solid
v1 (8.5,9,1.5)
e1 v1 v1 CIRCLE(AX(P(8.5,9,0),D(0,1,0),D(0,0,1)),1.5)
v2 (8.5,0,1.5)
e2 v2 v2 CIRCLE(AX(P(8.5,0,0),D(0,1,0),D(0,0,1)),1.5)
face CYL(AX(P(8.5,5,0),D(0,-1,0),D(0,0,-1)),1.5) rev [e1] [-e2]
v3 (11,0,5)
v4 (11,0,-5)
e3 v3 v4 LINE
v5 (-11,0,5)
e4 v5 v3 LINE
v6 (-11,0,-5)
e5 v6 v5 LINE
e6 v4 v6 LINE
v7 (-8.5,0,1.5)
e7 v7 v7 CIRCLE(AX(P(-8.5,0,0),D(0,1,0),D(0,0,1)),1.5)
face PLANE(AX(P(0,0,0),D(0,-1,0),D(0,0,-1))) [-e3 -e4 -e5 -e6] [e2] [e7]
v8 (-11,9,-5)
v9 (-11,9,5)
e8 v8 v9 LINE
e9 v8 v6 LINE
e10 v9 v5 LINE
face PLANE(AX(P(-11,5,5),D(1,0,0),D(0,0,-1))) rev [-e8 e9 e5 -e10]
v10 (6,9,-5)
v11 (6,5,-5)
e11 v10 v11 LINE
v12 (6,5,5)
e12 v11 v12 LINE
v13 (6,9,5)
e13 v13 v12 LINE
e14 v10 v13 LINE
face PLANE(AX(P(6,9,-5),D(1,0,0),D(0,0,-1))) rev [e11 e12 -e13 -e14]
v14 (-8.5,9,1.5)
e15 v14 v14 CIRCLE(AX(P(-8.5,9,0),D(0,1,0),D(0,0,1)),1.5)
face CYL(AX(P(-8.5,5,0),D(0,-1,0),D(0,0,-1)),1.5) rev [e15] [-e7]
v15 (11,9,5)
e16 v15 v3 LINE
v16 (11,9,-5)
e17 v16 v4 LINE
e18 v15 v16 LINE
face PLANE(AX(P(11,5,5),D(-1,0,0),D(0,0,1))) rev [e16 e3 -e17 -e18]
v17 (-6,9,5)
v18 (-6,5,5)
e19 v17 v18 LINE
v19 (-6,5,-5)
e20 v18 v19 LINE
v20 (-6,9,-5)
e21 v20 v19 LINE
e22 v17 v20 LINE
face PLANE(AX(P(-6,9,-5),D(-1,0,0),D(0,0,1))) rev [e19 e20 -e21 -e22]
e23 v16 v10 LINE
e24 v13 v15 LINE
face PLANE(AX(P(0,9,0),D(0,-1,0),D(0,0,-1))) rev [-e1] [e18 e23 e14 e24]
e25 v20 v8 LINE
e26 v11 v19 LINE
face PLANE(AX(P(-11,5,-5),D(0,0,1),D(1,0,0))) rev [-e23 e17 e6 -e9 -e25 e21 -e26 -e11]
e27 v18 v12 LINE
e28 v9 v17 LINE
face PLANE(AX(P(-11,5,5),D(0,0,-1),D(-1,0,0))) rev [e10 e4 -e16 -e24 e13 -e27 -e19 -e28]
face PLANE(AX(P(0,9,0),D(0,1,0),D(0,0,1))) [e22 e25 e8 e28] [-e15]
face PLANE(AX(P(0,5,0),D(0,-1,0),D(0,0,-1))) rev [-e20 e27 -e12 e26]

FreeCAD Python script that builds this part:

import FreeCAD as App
import Part
import Sketcher
from FreeCAD import Vector


def add_polygon(sketch, points):
    """Adds a closed chain of lines whose ends are joined by coincident constraints."""
    first, n = sketch.GeometryCount, len(points)
    for a, b in zip(points, points[1:] + points[:1]):
        sketch.addGeometry(Part.LineSegment(App.Vector(*a, 0), App.Vector(*b, 0)), False)
    for i in range(n):
        sketch.addConstraint(Sketcher.Constraint("Coincident", first + i, 2, first + (i + 1) % n, 1))

doc = App.newDocument("Part")
body = doc.addObject("PartDesign::Body", "Body")

# Sketch on XZ plane
sketch1 = body.newObject("Sketcher::SketchObject", "Sketch")
sketch1.AttachmentSupport = (doc.getObject("XZ_Plane"), [""])
sketch1.MapMode = "FlatFace"
add_polygon(sketch1, [(-11, -5), (-11, 5), (11, 5), (11, -5)])  # lines 0-3
sketch1.addGeometry(Part.Circle(Vector(-8.5, 0, 0), Vector(0, 0, 1), 1.5), False)  # 4
sketch1.addGeometry(Part.Circle(Vector(8.5, 0, 0), Vector(0, 0, 1), 1.5), False)  # 5
sketch1.addConstraint([
    Sketcher.Constraint("Vertical", 0),
    Sketcher.Constraint("Horizontal", 1),
    Sketcher.Constraint("Vertical", 2),
    Sketcher.Constraint("Horizontal", 3),
    Sketcher.Constraint("Equal", 4, 5),
    Sketcher.Constraint("Symmetric", 4, 3, 5, 3, -1, 1),
    Sketcher.Constraint("Symmetric", 0, 2, 2, 2, -1, 1),
    Sketcher.Constraint("PointOnObject", 4, 3, -1),
    Sketcher.Constraint("Diameter", 4, 3.0),
    Sketcher.Constraint("DistanceX", 1, 1, 1, 2, 22.0),
    Sketcher.Constraint("DistanceY", 0, 1, 0, 2, 10.0),
    Sketcher.Constraint("DistanceX", 4, 3, 5, 3, 17.0),
])
pad1 = body.newObject("PartDesign::Pad", "Pad")
pad1.Profile = sketch1
pad1.Length = 5
pad1.Reversed = True

# Sketch on XZ plane
sketch2 = body.newObject("Sketcher::SketchObject", "Sketch001")
sketch2.AttachmentSupport = (doc.getObject("XZ_Plane"), [""])
sketch2.MapMode = "FlatFace"
sketch2.AttachmentOffset = App.Placement(Vector(0, 0, -5), App.Rotation())
add_polygon(sketch2, [(-11, -5), (-11, 5), (-6, 5), (-6, -5)])  # lines 0-3
sketch2.addGeometry(Part.Circle(Vector(-8.5, 0, 0), Vector(0, 0, 1), 1.5), False)  # 4
add_polygon(sketch2, [(6, -5), (6, 5), (11, 5), (11, -5)])  # lines 5-8
sketch2.addGeometry(Part.Circle(Vector(8.5, 0, 0), Vector(0, 0, 1), 1.5), False)  # 9
sketch2.addConstraint([
    Sketcher.Constraint("Vertical", 0),
    Sketcher.Constraint("Horizontal", 1),
    Sketcher.Constraint("Vertical", 2),
    Sketcher.Constraint("Horizontal", 3),
    Sketcher.Constraint("Vertical", 5),
    Sketcher.Constraint("Horizontal", 6),
    Sketcher.Constraint("Vertical", 7),
    Sketcher.Constraint("Horizontal", 8),
    Sketcher.Constraint("Equal", 4, 9),
    Sketcher.Constraint("Symmetric", 4, 3, 9, 3, -1, 1),
    Sketcher.Constraint("Symmetric", 2, 2, 5, 2, -1, 1),
    Sketcher.Constraint("Symmetric", 0, 2, 7, 2, -1, 1),
    Sketcher.Constraint("PointOnObject", 4, 3, -1),
    Sketcher.Constraint("Horizontal", 1, 2, 5, 2),
    Sketcher.Constraint("Diameter", 4, 3.0),
    Sketcher.Constraint("DistanceX", 1, 1, 1, 2, 5.0),
    Sketcher.Constraint("DistanceY", 0, 1, 0, 2, 10.0),
    Sketcher.Constraint("DistanceX", 0, 2, -1, 1, 11.0),
    Sketcher.Constraint("DistanceX", 4, 3, 9, 3, 17.0),
])
pad2 = body.newObject("PartDesign::Pad", "Pad001")
pad2.Profile = sketch2
pad2.Length = 4
pad2.Reversed = True

doc.recompute()
